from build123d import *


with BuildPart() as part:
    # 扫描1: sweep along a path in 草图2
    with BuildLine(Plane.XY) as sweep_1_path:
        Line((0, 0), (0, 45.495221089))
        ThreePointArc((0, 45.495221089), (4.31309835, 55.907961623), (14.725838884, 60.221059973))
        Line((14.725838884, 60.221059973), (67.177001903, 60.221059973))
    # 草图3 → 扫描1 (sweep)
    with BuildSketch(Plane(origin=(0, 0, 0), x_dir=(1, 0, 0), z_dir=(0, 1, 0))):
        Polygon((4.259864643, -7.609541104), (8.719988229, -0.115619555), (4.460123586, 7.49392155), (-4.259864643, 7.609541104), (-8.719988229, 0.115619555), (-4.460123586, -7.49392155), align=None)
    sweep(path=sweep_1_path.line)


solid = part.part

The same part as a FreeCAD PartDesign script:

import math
import FreeCAD as App
import Part
import Sketcher

V = App.Vector

doc = App.newDocument("Part")
body = doc.addObject("PartDesign::Body", "Body")

# Sketch on XZ plane
sketch1 = body.newObject("Sketcher::SketchObject", "Sketch")
sketch1.AttachmentSupport = (doc.getObject("XZ_Plane"), [""])
sketch1.MapMode = "FlatFace"
sketch1.addGeometry([
    Part.LineSegment(V(4.259865, 7.609541, 0), V(8.719988, 0.11562, 0)),  # 0
    Part.LineSegment(V(8.719988, 0.11562, 0), V(4.460124, -7.493922, 0)),  # 1
    Part.LineSegment(V(4.460124, -7.493922, 0), V(-4.259865, -7.609541, 0)),  # 2
    Part.LineSegment(V(-4.259865, -7.609541, 0), V(-8.719988, -0.11562, 0)),  # 3
    Part.LineSegment(V(-8.719988, -0.11562, 0), V(-4.460124, 7.493922, 0)),  # 4
    Part.LineSegment(V(-4.460124, 7.493922, 0), V(4.259865, 7.609541, 0)),  # 5
], False)
sketch1.addConstraint([
    Sketcher.Constraint("Coincident", 0, 2, 1, 1),
    Sketcher.Constraint("Coincident", 1, 2, 2, 1),
    Sketcher.Constraint("Coincident", 2, 2, 3, 1),
    Sketcher.Constraint("Coincident", 3, 2, 4, 1),
    Sketcher.Constraint("Coincident", 4, 2, 5, 1),
    Sketcher.Constraint("Coincident", 5, 2, 0, 1),
    Sketcher.Constraint("Symmetric", 0, 2, 3, 2, -1, 1),
    Sketcher.Constraint("Symmetric", 1, 2, 4, 2, -1, 1),
    Sketcher.Constraint("Symmetric", 2, 2, 5, 2, -1, 1),
    Sketcher.Constraint("Equal", 0, 1),
    Sketcher.Constraint("Equal", 1, 2),
    Sketcher.Constraint("DistanceY", 1, 2, 3, 2, 7.378302),
    Sketcher.Constraint("DistanceX", -1, 1, 0, 2, 8.719988),
    Sketcher.Constraint("DistanceY", -1, 1, 0, 2, 0.11562),
    Sketcher.Constraint("DistanceY", 2, 2, -1, 1, 7.609541),
])

# Sketch on XY plane
sketch2 = body.newObject("Sketcher::SketchObject", "Sketch001")
sketch2.AttachmentSupport = (doc.getObject("XY_Plane"), [""])
sketch2.MapMode = "FlatFace"
sketch2.addGeometry([
    Part.LineSegment(V(0, 0, 0), V(0, 45.495221, 0)),
    Part.ArcOfCircle(Part.Circle(V(14.725839, 45.495221, 0), V(0, 0, 1), 14.725839), math.radians(90), math.radians(180)),
    Part.LineSegment(V(14.725839, 60.22106, 0), V(67.177002, 60.22106, 0)),
], False)
sketch2.addConstraint([
    Sketcher.Constraint("Tangent", 0, 2, 1, 2),
    Sketcher.Constraint("Tangent", 1, 1, 2, 1),
    Sketcher.Constraint("Vertical", 0),
    Sketcher.Constraint("Horizontal", 2),
    Sketcher.Constraint("Coincident", 0, 1, -1, 1),
    Sketcher.Constraint("Radius", 1, 14.725839),
    Sketcher.Constraint("DistanceX", -1, 1, 2, 2, 67.177002),
    Sketcher.Constraint("DistanceY", 0, 1, 0, 2, 45.495221),
])
doc.recompute()

additivepipe = body.newObject("PartDesign::AdditivePipe", "AdditivePipe")
additivepipe.Profile = sketch1
additivepipe.Spine = (sketch2, ["Edge1", "Edge2", "Edge3"])

doc.recompute()
